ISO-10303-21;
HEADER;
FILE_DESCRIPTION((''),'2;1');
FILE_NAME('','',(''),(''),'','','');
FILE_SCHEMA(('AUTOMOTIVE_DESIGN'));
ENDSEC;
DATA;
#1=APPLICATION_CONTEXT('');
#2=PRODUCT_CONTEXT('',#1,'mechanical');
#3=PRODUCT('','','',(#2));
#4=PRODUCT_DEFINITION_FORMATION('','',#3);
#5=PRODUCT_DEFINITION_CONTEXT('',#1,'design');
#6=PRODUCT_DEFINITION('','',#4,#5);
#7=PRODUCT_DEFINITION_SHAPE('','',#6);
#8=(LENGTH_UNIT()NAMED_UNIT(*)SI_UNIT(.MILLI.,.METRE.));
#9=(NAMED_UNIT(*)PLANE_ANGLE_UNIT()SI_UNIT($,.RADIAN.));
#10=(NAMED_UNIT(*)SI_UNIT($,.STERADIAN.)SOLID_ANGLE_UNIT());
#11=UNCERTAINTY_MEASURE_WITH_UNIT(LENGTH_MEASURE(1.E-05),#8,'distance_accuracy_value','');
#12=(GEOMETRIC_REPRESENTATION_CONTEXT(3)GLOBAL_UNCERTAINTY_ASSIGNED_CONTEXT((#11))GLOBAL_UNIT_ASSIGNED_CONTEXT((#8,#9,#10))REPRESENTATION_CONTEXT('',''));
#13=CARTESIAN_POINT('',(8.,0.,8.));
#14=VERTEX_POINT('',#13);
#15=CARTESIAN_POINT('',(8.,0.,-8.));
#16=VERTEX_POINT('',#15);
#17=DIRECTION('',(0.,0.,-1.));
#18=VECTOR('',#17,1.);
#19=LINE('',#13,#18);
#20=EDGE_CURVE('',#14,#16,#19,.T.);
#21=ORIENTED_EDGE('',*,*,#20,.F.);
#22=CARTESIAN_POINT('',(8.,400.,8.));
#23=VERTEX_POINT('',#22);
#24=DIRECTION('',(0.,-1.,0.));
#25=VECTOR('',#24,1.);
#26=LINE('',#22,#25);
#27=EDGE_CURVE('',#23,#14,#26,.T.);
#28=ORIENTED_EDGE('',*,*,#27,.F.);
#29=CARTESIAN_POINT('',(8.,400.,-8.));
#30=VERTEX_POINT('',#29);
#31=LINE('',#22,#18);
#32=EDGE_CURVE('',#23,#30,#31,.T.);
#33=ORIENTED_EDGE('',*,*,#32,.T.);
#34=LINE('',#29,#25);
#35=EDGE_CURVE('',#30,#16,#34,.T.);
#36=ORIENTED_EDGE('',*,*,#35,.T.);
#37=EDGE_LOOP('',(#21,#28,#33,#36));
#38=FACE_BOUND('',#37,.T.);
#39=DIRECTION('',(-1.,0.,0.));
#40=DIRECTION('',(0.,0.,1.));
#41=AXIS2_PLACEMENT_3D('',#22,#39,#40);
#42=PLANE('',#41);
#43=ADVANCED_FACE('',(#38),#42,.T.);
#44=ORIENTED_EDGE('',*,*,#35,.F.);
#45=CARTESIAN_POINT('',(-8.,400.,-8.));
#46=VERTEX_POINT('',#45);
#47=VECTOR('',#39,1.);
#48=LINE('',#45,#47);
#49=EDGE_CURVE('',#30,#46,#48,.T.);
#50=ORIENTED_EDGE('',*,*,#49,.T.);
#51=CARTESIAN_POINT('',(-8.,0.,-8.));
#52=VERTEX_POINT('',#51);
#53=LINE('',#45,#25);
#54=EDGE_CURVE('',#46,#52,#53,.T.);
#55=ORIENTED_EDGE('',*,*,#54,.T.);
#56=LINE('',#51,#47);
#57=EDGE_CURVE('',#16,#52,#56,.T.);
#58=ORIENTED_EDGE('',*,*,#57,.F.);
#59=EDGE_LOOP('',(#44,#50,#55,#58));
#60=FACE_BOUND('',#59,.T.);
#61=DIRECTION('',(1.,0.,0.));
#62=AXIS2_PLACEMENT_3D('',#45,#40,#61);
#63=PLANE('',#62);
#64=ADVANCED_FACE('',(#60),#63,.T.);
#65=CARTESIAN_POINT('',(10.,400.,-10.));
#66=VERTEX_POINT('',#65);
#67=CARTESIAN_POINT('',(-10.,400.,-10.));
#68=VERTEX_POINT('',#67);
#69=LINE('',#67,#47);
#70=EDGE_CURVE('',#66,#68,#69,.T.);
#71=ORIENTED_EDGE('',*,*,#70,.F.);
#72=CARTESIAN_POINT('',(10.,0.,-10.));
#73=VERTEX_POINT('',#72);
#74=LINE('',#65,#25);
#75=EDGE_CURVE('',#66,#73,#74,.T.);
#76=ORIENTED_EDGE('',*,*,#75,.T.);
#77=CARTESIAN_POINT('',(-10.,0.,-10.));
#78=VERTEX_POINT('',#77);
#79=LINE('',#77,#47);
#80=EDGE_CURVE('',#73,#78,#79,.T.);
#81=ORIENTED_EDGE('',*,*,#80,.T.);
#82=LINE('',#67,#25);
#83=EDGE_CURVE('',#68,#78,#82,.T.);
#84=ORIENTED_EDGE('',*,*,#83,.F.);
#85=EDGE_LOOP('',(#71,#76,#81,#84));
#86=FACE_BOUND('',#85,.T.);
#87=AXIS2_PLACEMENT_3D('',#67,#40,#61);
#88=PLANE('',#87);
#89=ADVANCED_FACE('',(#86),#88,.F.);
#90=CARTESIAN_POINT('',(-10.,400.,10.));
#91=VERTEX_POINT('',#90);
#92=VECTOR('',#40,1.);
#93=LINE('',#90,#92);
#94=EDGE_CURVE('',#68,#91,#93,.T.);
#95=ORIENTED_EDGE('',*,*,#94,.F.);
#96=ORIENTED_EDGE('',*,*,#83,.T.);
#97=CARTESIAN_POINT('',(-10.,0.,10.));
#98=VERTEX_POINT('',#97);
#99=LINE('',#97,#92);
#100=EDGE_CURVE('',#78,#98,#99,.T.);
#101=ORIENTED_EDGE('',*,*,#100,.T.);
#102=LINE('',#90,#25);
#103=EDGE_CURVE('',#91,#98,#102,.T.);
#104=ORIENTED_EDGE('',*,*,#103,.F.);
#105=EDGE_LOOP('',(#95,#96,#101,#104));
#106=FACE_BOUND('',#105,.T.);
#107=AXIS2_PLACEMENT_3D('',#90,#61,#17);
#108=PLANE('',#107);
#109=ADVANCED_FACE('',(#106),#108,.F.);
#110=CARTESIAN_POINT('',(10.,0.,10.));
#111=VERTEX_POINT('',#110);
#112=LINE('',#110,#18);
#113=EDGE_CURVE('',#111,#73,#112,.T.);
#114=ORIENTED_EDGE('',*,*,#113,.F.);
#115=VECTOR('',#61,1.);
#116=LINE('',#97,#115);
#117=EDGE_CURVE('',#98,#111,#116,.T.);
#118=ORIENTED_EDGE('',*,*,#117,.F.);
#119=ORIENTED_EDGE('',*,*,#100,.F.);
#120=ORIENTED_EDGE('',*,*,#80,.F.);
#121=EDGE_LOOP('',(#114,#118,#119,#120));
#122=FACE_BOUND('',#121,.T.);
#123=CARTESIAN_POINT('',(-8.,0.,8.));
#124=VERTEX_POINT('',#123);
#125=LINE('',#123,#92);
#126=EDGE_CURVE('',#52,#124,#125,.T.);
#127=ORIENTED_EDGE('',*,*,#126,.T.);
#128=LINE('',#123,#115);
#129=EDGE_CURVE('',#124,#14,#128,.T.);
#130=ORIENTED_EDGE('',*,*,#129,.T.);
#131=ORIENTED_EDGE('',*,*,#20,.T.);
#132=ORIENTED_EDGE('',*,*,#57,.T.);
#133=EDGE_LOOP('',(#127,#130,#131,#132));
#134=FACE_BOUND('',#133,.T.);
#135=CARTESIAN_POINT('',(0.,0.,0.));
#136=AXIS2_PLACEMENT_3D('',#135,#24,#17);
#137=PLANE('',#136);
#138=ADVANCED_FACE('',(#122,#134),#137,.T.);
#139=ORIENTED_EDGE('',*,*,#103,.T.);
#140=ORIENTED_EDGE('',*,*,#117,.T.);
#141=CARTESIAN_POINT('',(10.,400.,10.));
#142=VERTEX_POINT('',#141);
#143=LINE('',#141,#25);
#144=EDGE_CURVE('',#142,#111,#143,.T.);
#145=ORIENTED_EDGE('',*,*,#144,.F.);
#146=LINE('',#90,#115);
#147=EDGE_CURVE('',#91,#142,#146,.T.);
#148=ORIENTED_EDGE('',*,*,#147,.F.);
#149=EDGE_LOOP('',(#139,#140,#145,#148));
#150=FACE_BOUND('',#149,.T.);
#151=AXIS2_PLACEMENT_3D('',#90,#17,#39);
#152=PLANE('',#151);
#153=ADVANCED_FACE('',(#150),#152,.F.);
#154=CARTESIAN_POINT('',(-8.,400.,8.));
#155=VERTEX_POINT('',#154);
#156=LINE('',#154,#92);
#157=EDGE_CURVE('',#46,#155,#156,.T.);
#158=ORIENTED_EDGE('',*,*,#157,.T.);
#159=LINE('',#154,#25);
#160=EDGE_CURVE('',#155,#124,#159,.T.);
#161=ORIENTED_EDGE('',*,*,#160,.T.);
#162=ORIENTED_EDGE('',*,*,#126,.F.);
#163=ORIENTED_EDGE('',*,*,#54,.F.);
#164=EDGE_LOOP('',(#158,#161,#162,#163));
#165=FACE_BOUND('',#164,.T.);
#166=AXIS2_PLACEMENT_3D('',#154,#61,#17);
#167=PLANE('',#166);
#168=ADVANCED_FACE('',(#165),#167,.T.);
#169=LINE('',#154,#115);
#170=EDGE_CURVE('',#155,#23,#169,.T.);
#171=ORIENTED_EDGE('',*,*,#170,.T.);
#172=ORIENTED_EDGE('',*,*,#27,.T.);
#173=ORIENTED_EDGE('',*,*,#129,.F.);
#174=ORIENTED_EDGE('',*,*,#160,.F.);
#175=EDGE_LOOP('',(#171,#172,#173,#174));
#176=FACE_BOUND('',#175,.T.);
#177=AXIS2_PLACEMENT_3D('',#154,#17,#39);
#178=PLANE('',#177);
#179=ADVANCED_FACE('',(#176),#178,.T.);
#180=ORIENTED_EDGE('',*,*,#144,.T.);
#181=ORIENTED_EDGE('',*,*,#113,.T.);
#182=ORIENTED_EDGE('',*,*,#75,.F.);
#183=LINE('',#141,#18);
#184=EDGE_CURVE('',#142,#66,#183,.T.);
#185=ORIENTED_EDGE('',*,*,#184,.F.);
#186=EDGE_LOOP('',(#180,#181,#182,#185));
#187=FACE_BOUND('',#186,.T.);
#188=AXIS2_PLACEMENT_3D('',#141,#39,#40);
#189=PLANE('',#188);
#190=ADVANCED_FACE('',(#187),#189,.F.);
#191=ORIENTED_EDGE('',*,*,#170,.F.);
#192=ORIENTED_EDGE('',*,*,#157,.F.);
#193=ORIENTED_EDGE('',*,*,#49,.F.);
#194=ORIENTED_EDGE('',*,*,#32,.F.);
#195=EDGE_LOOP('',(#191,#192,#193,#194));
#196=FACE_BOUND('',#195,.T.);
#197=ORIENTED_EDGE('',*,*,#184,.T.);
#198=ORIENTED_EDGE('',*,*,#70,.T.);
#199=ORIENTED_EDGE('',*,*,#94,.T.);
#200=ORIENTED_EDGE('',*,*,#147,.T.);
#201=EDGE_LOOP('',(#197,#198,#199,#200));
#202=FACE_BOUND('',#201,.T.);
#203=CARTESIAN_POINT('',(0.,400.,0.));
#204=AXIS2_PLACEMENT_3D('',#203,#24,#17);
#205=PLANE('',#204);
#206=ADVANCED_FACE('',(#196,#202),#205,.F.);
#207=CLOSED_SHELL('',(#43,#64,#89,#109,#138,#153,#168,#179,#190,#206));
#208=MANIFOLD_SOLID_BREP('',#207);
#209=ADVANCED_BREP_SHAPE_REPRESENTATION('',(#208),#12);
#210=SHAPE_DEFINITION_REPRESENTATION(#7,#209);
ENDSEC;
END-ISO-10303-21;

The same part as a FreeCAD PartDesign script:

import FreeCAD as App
import Part
import Sketcher
from FreeCAD import Vector


def add_polygon(sketch, points):
    """Adds a closed chain of lines whose ends are joined by coincident constraints."""
    first, n = sketch.GeometryCount, len(points)
    for a, b in zip(points, points[1:] + points[:1]):
        sketch.addGeometry(Part.LineSegment(App.Vector(*a, 0), App.Vector(*b, 0)), False)
    for i in range(n):
        sketch.addConstraint(Sketcher.Constraint("Coincident", first + i, 2, first + (i + 1) % n, 1))

doc = App.newDocument("Part")
body = doc.addObject("PartDesign::Body", "Body")

# Sketch on XZ plane
sketch1 = doc.addObject("Sketcher::SketchObject", "Sketch")
body.addObject(sketch1)
sketch1.AttachmentSupport = (doc.XZ_Plane, [""])
sketch1.MapMode = "FlatFace"
add_polygon(sketch1, [(-10, -10), (-10, 10), (10, 10), (10, -10)])  # lines 0-3
add_polygon(sketch1, [(8, 8), (-8, 8), (-8, -8), (8, -8)])  # lines 4-7
sketch1.addConstraint(Sketcher.Constraint("Vertical", 0))
sketch1.addConstraint(Sketcher.Constraint("Horizontal", 1))
sketch1.addConstraint(Sketcher.Constraint("Vertical", 2))
sketch1.addConstraint(Sketcher.Constraint("Horizontal", 3))
sketch1.addConstraint(Sketcher.Constraint("Horizontal", 4))
sketch1.addConstraint(Sketcher.Constraint("Vertical", 5))
sketch1.addConstraint(Sketcher.Constraint("Horizontal", 6))
sketch1.addConstraint(Sketcher.Constraint("Vertical", 7))
sketch1.addConstraint(Sketcher.Constraint("Symmetric", 0, 2, 2, 2, -1, 1))
sketch1.addConstraint(Sketcher.Constraint("Symmetric", 4, 2, 6, 2, -1, 1))
sketch1.addConstraint(Sketcher.Constraint("Equal", 3, 0))
sketch1.addConstraint(Sketcher.Constraint("Equal", 6, 5))
sketch1.addConstraint(Sketcher.Constraint("DistanceX", 1, 1, 1, 2, 20.0))
sketch1.addConstraint(Sketcher.Constraint("DistanceX", 4, 2, 4, 1, 16.0))
pad1 = doc.addObject("PartDesign::Pad", "Pad")
body.addObject(pad1)
pad1.Profile = sketch1
pad1.Length = 400
pad1.Reversed = True

doc.recompute()
